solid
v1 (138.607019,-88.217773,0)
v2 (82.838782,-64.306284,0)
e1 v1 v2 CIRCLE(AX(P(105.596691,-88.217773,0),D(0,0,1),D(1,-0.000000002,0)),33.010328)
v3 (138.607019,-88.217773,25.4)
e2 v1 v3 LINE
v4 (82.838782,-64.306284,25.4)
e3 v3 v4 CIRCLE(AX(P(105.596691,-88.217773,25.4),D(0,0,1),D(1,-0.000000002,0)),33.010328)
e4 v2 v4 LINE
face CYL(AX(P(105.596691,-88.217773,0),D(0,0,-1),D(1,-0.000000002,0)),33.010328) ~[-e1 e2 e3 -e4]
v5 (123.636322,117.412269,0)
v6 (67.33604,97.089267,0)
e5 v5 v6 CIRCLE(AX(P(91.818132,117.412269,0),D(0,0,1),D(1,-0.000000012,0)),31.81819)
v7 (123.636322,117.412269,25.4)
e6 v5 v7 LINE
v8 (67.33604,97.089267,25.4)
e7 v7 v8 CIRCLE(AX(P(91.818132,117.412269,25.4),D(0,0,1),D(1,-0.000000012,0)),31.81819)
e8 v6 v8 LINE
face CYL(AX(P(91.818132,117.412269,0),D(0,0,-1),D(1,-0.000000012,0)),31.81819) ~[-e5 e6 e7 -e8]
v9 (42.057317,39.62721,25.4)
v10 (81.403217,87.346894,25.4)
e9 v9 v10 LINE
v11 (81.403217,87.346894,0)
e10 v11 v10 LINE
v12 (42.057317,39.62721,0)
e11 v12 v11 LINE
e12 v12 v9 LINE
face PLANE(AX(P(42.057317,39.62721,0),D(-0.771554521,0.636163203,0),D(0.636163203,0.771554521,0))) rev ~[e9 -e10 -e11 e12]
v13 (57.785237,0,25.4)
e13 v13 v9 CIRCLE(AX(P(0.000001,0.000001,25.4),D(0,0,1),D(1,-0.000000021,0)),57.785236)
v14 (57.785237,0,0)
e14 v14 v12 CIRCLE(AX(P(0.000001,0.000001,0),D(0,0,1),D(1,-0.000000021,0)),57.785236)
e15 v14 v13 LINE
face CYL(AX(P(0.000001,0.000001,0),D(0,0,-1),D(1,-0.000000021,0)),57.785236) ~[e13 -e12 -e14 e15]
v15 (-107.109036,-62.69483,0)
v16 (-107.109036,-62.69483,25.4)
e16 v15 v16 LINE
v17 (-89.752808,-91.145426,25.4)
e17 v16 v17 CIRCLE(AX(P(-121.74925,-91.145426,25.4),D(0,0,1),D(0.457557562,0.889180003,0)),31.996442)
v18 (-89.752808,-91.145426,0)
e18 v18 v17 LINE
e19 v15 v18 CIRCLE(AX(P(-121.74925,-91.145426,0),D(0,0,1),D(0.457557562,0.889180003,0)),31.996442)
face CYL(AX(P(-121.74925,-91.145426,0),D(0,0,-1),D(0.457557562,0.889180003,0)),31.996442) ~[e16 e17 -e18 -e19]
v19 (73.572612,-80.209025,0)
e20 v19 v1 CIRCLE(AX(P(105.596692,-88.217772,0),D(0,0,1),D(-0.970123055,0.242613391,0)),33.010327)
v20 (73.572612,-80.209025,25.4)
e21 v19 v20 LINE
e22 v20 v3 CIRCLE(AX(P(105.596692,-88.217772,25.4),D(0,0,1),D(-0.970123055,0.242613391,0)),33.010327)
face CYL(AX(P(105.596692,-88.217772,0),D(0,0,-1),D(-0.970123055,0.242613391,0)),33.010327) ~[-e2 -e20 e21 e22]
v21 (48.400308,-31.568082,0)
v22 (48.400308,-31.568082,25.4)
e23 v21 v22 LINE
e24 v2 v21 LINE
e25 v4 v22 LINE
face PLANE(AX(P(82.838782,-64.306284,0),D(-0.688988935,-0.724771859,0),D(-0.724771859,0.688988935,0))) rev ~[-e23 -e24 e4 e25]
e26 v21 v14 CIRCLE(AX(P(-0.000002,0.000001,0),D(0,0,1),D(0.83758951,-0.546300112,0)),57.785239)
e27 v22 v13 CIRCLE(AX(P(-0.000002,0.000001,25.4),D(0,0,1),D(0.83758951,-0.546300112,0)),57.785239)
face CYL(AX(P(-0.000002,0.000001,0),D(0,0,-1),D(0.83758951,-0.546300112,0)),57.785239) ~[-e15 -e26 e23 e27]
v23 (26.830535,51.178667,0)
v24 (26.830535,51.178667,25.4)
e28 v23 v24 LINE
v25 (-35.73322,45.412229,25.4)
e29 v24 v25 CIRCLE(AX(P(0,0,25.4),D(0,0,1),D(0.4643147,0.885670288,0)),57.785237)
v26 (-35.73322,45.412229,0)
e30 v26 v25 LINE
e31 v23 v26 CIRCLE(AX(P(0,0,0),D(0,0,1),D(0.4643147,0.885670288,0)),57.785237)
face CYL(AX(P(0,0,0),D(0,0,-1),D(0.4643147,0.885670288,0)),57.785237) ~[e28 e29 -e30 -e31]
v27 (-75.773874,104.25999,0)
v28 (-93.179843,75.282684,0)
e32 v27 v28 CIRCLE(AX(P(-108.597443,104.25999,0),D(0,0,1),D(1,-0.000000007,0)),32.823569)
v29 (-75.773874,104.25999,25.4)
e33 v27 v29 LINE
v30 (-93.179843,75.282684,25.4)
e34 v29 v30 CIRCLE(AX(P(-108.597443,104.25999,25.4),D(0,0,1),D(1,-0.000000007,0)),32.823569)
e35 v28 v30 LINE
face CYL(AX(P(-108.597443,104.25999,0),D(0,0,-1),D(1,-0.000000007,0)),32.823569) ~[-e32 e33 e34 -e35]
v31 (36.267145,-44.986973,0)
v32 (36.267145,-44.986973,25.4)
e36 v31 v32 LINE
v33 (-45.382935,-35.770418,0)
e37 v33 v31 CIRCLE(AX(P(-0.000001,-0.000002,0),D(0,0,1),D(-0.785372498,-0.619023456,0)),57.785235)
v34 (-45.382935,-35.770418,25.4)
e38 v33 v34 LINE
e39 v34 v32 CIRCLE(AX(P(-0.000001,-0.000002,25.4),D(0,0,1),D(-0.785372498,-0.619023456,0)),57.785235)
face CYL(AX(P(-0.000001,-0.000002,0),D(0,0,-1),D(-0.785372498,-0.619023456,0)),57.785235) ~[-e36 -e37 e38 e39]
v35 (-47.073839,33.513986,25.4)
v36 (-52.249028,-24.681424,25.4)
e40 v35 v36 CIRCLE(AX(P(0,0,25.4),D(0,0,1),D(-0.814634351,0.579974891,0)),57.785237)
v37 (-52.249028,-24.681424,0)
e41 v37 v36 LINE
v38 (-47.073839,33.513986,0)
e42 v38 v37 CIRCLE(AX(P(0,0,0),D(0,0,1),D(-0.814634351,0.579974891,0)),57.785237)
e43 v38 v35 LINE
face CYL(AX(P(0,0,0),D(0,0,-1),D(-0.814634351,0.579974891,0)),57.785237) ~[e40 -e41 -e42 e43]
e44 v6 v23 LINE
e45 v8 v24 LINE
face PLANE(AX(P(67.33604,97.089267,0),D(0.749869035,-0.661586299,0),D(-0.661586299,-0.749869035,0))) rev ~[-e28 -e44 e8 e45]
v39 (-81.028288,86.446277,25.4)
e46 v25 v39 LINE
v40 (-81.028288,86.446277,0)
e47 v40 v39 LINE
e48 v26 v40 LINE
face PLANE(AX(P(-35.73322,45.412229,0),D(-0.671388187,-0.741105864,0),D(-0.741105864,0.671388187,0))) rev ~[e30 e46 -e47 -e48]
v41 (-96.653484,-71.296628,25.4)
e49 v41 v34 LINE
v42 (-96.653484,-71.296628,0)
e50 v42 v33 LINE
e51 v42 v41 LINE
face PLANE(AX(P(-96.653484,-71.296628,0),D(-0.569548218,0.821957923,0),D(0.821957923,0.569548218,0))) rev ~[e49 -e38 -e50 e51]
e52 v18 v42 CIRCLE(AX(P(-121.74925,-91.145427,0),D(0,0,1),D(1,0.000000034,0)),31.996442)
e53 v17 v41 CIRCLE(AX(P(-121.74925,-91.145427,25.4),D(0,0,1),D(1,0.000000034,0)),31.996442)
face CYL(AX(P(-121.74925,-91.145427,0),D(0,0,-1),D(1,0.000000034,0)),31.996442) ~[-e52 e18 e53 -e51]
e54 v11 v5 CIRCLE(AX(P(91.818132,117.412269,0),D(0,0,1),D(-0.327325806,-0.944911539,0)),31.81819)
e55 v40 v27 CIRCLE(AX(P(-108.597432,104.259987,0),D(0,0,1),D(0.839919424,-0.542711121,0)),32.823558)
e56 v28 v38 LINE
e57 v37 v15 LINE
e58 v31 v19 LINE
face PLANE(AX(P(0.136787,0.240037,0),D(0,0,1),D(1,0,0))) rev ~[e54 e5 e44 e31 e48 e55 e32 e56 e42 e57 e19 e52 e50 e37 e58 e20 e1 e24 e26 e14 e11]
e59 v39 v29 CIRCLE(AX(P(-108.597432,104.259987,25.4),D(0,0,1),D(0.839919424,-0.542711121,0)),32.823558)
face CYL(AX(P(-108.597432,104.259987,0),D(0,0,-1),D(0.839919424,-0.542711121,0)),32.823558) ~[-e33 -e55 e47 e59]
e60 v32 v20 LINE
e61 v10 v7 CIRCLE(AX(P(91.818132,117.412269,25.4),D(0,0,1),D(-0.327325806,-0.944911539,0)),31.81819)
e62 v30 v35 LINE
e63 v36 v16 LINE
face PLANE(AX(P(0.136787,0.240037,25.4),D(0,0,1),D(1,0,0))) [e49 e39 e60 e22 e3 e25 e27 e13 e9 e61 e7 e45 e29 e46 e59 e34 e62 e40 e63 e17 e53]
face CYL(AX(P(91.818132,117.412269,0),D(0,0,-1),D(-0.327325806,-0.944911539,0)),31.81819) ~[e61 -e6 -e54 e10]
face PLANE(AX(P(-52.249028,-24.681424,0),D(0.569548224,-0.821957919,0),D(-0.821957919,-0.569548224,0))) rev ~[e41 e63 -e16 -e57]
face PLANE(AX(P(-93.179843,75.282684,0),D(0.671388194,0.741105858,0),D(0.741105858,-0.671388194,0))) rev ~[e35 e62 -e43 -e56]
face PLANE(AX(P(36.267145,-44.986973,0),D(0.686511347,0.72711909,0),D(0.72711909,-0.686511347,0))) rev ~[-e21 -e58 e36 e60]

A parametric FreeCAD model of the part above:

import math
import FreeCAD as App
import Part
import Sketcher
Q = App.Units.Quantity

doc = App.newDocument("Part")
body = doc.addObject("PartDesign::Body", "Body")

# Sketch on XY plane
sketch1 = body.newObject("Sketcher::SketchObject", "Sketch")
sketch1.AttachmentSupport = (doc.getObject("XY_Plane"), [""])
sketch1.MapMode = "FlatFace"
sketch1.addGeometry([
    Part.ArcOfCircle(Part.Circle(App.Vector(0, 0, 0), App.Vector(0, 0, 1), 58), math.radians(-33), math.radians(0)),  # 0
    Part.ArcOfCircle(Part.Circle(App.Vector(0, 0, 0), App.Vector(0, 0, 1), 58), math.radians(0), math.radians(43)),  # 1
    Part.LineSegment(App.Vector(42, 40, 0), App.Vector(81, 87, 0)),  # 2
    Part.ArcOfCircle(Part.Circle(App.Vector(92, 117, 0), App.Vector(0, 0, 1), 32), math.radians(-109), math.radians(0)),  # 3
    Part.ArcOfCircle(Part.Circle(App.Vector(92, 117, 0), App.Vector(0, 0, 1), 32), math.radians(0), math.radians(220)),  # 4
    Part.LineSegment(App.Vector(67, 97, 0), App.Vector(27, 51, 0)),  # 5
    Part.ArcOfCircle(Part.Circle(App.Vector(0, 0, 0), App.Vector(0, 0, 1), 58), math.radians(62), math.radians(128)),  # 6
    Part.LineSegment(App.Vector(-36, 45, 0), App.Vector(-81, 86, 0)),  # 7
    Part.ArcOfCircle(Part.Circle(App.Vector(-109, 104, 0), App.Vector(0, 0, 1), 33), math.radians(-33), math.radians(0)),  # 8
    Part.ArcOfCircle(Part.Circle(App.Vector(-109, 104, 0), App.Vector(0, 0, 1), 33), math.radians(0), math.radians(298)),  # 9
    Part.LineSegment(App.Vector(-93, 75, 0), App.Vector(-47, 34, 0)),  # 10
    Part.ArcOfCircle(Part.Circle(App.Vector(0, 0, 0), App.Vector(0, 0, 1), 58), math.radians(145), math.radians(205)),  # 11
    Part.LineSegment(App.Vector(-52, -25, 0), App.Vector(-107, -63, 0)),  # 12
    Part.ArcOfCircle(Part.Circle(App.Vector(-122, -91, 0), App.Vector(0, 0, 1), 32), math.radians(63), math.radians(360)),  # 13
    Part.ArcOfCircle(Part.Circle(App.Vector(-122, -91, 0), App.Vector(0, 0, 1), 32), math.radians(0), math.radians(38)),  # 14
    Part.LineSegment(App.Vector(-97, -71, 0), App.Vector(-45, -36, 0)),  # 15
    Part.ArcOfCircle(Part.Circle(App.Vector(0, 0, 0), App.Vector(0, 0, 1), 58), math.radians(-142), math.radians(-51)),  # 16
    Part.LineSegment(App.Vector(36, -45, 0), App.Vector(74, -80, 0)),  # 17
    Part.ArcOfCircle(Part.Circle(App.Vector(106, -88, 0), App.Vector(0, 0, 1), 33), math.radians(166), math.radians(360)),  # 18
    Part.ArcOfCircle(Part.Circle(App.Vector(106, -88, 0), App.Vector(0, 0, 1), 33), math.radians(0), math.radians(134)),  # 19
    Part.LineSegment(App.Vector(83, -64, 0), App.Vector(48, -32, 0)),  # 20
], False)
sketch1.addConstraint([
    Sketcher.Constraint("Tangent", 0, 2, 1, 1),
    Sketcher.Constraint("Coincident", 1, 2, 2, 1),
    Sketcher.Constraint("Coincident", 2, 2, 3, 1),
    Sketcher.Constraint("Tangent", 3, 2, 4, 1),
    Sketcher.Constraint("Coincident", 4, 2, 5, 1),
    Sketcher.Constraint("Coincident", 5, 2, 6, 1),
    Sketcher.Constraint("Coincident", 6, 2, 7, 1),
    Sketcher.Constraint("Coincident", 7, 2, 8, 1),
    Sketcher.Constraint("Tangent", 8, 2, 9, 1),
    Sketcher.Constraint("Coincident", 9, 2, 10, 1),
    Sketcher.Constraint("Coincident", 10, 2, 11, 1),
    Sketcher.Constraint("Coincident", 11, 2, 12, 1),
    Sketcher.Constraint("Coincident", 12, 2, 13, 1),
    Sketcher.Constraint("Tangent", 13, 2, 14, 1),
    Sketcher.Constraint("Coincident", 14, 2, 15, 1),
    Sketcher.Constraint("Coincident", 15, 2, 16, 1),
    Sketcher.Constraint("Coincident", 16, 2, 17, 1),
    Sketcher.Constraint("Coincident", 17, 2, 18, 1),
    Sketcher.Constraint("Tangent", 18, 2, 19, 1),
    Sketcher.Constraint("Coincident", 19, 2, 20, 1),
    Sketcher.Constraint("Coincident", 20, 2, 0, 1),
    Sketcher.Constraint("Coincident", 0, 3, -1, 1),
    Sketcher.Constraint("Coincident", 6, 3, -1, 1),
    Sketcher.Constraint("Coincident", 11, 3, -1, 1),
    Sketcher.Constraint("Coincident", 16, 3, -1, 1),
    Sketcher.Constraint("Equal", 3, 4),
    Sketcher.Constraint("Equal", 1, 6),
    Sketcher.Constraint("Equal", 6, 11),
    Sketcher.Constraint("Equal", 13, 14),
    Sketcher.Constraint("Equal", 11, 16),
    Sketcher.Constraint("Equal", 18, 19),
    Sketcher.Constraint("PointOnObject", 0, 2, -1),
    Sketcher.Constraint("Parallel", 7, 10),
    Sketcher.Constraint("Parallel", 12, 15),
    Sketcher.Constraint("Horizontal", 4, 3, 3, 2),
    Sketcher.Constraint("Horizontal", 9, 3, 8, 2),
    Sketcher.Constraint("Horizontal", 14, 3, 13, 2),
    Sketcher.Constraint("Horizontal", 19, 3, 18, 2),
    Sketcher.Constraint("Radius", 0, Q("57.785239 mm")),
    Sketcher.Constraint("Radius", 3, Q("31.81819 mm")),
    Sketcher.Constraint("Radius", 9, Q("32.823569 mm")),
    Sketcher.Constraint("Radius", 13, Q("31.996442 mm")),
    Sketcher.Constraint("DistanceY", 18, 2, 16, 2, Q("1.702 in")),
    Sketcher.Constraint("DistanceX", -1, 1, 1, 2, Q("1.6557999 in")),
    Sketcher.Constraint("Radius", 1, Q("57.785236 mm")),
    Sketcher.Constraint("Radius", 8, Q("32.823558 mm")),
    Sketcher.Constraint("Radius", 18, Q("33.010327 mm")),
    Sketcher.Constraint("DistanceX", 19, 2, 18, 2, Q("2.1955999 in")),
    Sketcher.Constraint("DistanceX", 1, 2, 2, 2, Q("39.3459 mm")),
    Sketcher.Constraint("DistanceX", 9, 3, 9, 2, Q("15.4176 mm")),
    Sketcher.Constraint("DistanceY", 13, 2, 11, 2, Q("66.464002 mm")),
    Sketcher.Constraint("DistanceY", 14, 2, 12, 2, Q("8.601798 mm")),
    Sketcher.Constraint("DistanceY", 13, 3, 14, 2, Q("19.848798 mm")),
    Sketcher.Constraint("DistanceY", 19, 2, 20, 2, Q("32.738202 mm")),
    Sketcher.Constraint("Distance", 2, Q("61.848752 mm")),
    Sketcher.Constraint("Distance", 10, Q("62.21244 mm")),
    Sketcher.Constraint("DistanceX", -1, 1, 3, 3, Q("91.818132 mm")),
    Sketcher.Constraint("DistanceX", 8, 3, -1, 1, Q("108.597432 mm")),
    Sketcher.Constraint("DistanceY", -1, 1, 9, 3, Q("104.25999 mm")),
    Sketcher.Constraint("DistanceX", 13, 3, -1, 1, Q("121.74925 mm")),
    Sketcher.Constraint("DistanceX", -1, 1, 18, 3, Q("105.596692 mm")),
    Sketcher.Constraint("DistanceX", -1, 1, 4, 2, Q("67.33604 mm")),
    Sketcher.Constraint("DistanceX", 6, 2, -1, 1, Q("35.73322 mm")),
    Sketcher.Constraint("DistanceX", 11, 2, -1, 1, Q("52.249028 mm")),
    Sketcher.Constraint("DistanceX", -1, 1, 20, 2, Q("48.400308 mm")),
    Sketcher.Constraint("DistanceY", 5, 2, 7, 2, Q("35.26761 mm")),
    Sketcher.Constraint("DistanceX", 17, 2, 19, 3, Q("32.024079 mm")),
])
pad1 = body.newObject("PartDesign::Pad", "Pad")
pad1.Profile = sketch1
pad1.Length = Q("1 in")

doc.recompute()
